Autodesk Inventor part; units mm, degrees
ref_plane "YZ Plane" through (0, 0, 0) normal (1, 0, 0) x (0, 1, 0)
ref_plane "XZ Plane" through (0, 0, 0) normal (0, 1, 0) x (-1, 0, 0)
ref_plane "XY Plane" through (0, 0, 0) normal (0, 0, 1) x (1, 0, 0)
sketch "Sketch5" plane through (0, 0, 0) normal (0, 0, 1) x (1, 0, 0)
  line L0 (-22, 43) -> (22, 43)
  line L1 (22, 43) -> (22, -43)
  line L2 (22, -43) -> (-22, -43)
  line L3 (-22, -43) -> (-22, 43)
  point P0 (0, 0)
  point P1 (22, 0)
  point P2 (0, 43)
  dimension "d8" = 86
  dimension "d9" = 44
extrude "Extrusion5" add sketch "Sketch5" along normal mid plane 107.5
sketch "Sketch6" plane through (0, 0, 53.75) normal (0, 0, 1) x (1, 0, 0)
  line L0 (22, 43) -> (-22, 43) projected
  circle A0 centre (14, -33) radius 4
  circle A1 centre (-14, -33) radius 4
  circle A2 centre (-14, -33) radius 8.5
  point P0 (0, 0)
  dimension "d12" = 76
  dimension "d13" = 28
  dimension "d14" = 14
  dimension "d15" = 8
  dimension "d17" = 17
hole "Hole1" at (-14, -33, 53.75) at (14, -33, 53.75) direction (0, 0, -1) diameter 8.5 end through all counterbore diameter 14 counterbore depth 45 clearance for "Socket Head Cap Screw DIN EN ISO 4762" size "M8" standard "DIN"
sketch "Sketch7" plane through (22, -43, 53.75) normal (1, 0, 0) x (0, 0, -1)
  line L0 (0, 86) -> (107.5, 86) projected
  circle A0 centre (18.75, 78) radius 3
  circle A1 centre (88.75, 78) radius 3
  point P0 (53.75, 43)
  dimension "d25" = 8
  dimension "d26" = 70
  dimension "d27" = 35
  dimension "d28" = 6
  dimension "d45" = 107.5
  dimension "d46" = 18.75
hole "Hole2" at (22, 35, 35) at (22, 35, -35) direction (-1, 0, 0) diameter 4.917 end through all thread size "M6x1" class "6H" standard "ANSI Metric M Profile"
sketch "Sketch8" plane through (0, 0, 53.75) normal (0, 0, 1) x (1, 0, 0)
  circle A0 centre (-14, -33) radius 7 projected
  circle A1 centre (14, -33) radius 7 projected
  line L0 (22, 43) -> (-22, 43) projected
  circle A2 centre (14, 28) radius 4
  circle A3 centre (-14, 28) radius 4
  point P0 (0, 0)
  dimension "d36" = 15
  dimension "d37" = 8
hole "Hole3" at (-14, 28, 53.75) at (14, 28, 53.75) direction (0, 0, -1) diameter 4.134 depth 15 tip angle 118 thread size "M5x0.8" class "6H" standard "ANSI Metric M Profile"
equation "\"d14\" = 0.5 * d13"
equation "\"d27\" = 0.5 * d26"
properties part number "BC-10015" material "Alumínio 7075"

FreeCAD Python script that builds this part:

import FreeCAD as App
import Part
import Sketcher


def add_polygon(sketch, points):
    """Adds a closed chain of lines whose ends are joined by coincident constraints."""
    first, n = sketch.GeometryCount, len(points)
    for a, b in zip(points, points[1:] + points[:1]):
        sketch.addGeometry(Part.LineSegment(App.Vector(*a, 0), App.Vector(*b, 0)), False)
    for i in range(n):
        sketch.addConstraint(Sketcher.Constraint("Coincident", first + i, 2, first + (i + 1) % n, 1))

doc = App.newDocument("Part")
params = doc.addObject("Spreadsheet::Sheet", "Params")
for row, (alias, value) in enumerate([
    ("sketch1_width", "44 mm"),
    ("sketch1_height", "86 mm"),
    ("pad1_length", "107.5 mm"),
    ("sketch2_diameter", "8.5 mm"),
    ("hole_diameter", "8.5 mm"),
    ("hole_cbore_diameter", "14 mm"),
    ("hole_cbore_depth", "45 mm"),
    ("hole2_diameter", "4.917 mm"),
    ("hole3_diameter", "4.134 mm"),
    ("hole3_depth", "15 mm"),
], start=1):
    params.set(f"A{row}", alias)
    params.set(f"B{row}", "=" + value)
    params.setAlias(f"B{row}", alias)

body = doc.addObject("PartDesign::Body", "Body")

sketch1 = body.newObject("Sketcher::SketchObject", "Sketch")
sketch1.AttachmentSupport = (doc.getObject("XY_Plane"), [""])
sketch1.MapMode = "FlatFace"
add_polygon(sketch1, [(22, 43), (-22, 43), (-22, -43), (22, -43)])
sketch1.addConstraint([
    Sketcher.Constraint("Horizontal", 0),
    Sketcher.Constraint("Vertical", 1),
    Sketcher.Constraint("Horizontal", 2),
    Sketcher.Constraint("Vertical", 3),
    Sketcher.Constraint("Symmetric", 0, 2, 2, 2, -1, 1),
    Sketcher.Constraint("DistanceX", 0, 2, 0, 1, 44.0),
    Sketcher.Constraint("DistanceY", 1, 2, 1, 1, 86.0),
])
sketch1.setExpression("Constraints[9]", "Params.sketch1_width")
sketch1.setExpression("Constraints[10]", "Params.sketch1_height")
pad1 = body.newObject("PartDesign::Pad", "Pad")
pad1.Profile = sketch1
pad1.setExpression("Length", "Params.pad1_length")
pad1.Midplane = True

sketch2 = body.newObject("Sketcher::SketchObject", "Sketch001")
sketch2.AttachmentSupport = (doc.getObject("XY_Plane"), [""])
sketch2.MapMode = "FlatFace"
sketch2.AttachmentOffset = App.Placement(App.Vector(0, 0, 53.75), App.Rotation())
sketch2.addGeometry([
    Part.Circle(App.Vector(-14, -33, 0), App.Vector(0, 0, 1), 4.25),
    Part.Circle(App.Vector(14, -33, 0), App.Vector(0, 0, 1), 4.25),
], False)
sketch2.addConstraint([
    Sketcher.Constraint("Equal", 0, 1),
    Sketcher.Constraint("Symmetric", 0, 3, 1, 3, -2),
    Sketcher.Constraint("Diameter", 0, 8.5),
    Sketcher.Constraint("DistanceX", 0, 3, -1, 1, 14.0),
    Sketcher.Constraint("DistanceY", 0, 3, -1, 1, 33.0),
])
sketch2.setExpression("Constraints[2]", "Params.sketch2_diameter")
doc.recompute()
hole = body.newObject("PartDesign::Hole", "Hole")
hole.Profile = sketch2
hole.ThreadType = "None"
hole.setExpression("Diameter", "Params.hole_diameter")
hole.DepthType = "ThroughAll"
hole.HoleCutType = "Counterbore"
hole.setExpression("HoleCutDiameter", "Params.hole_cbore_diameter")
hole.setExpression("HoleCutDepth", "Params.hole_cbore_depth")

sketch3 = body.newObject("Sketcher::SketchObject", "Sketch002")
sketch3.AttachmentSupport = (doc.getObject("YZ_Plane"), [""])
sketch3.MapMode = "FlatFace"
sketch3.AttachmentOffset = App.Placement(App.Vector(0, 0, 22), App.Rotation())
sketch3.addGeometry([
    Part.Circle(App.Vector(35, 35, 0), App.Vector(0, 0, 1), 2.4585),
    Part.Circle(App.Vector(35, -35, 0), App.Vector(0, 0, 1), 2.4585),
], False)
sketch3.addConstraint([
    Sketcher.Constraint("Equal", 0, 1),
    Sketcher.Constraint("Symmetric", 0, 3, 1, 3, -1),
    Sketcher.Constraint("Diameter", 0, 4.917),
    Sketcher.Constraint("DistanceX", -1, 1, 0, 3, 35.0),
    Sketcher.Constraint("DistanceY", -1, 1, 0, 3, 35.0),
])
doc.recompute()
hole2 = body.newObject("PartDesign::Hole", "Hole001")
hole2.Profile = sketch3
hole2.ThreadType = "None"
hole2.setExpression("Diameter", "Params.hole2_diameter")
hole2.DepthType = "ThroughAll"

sketch4 = body.newObject("Sketcher::SketchObject", "Sketch003")
sketch4.AttachmentSupport = (doc.getObject("XY_Plane"), [""])
sketch4.MapMode = "FlatFace"
sketch4.AttachmentOffset = App.Placement(App.Vector(0, 0, 53.75), App.Rotation())
sketch4.addGeometry([
    Part.Circle(App.Vector(-14, 28, 0), App.Vector(0, 0, 1), 2.067),
    Part.Circle(App.Vector(14, 28, 0), App.Vector(0, 0, 1), 2.067),
], False)
sketch4.addConstraint([
    Sketcher.Constraint("Equal", 0, 1),
    Sketcher.Constraint("Symmetric", 0, 3, 1, 3, -2),
    Sketcher.Constraint("Diameter", 0, 4.134),
    Sketcher.Constraint("DistanceX", 0, 3, -1, 1, 14.0),
    Sketcher.Constraint("DistanceY", -1, 1, 0, 3, 28.0),
])
doc.recompute()
hole3 = body.newObject("PartDesign::Hole", "Hole002")
hole3.Profile = sketch4
hole3.ThreadType = "None"
hole3.setExpression("Diameter", "Params.hole3_diameter")
hole3.DepthType = "Dimension"
hole3.setExpression("Depth", "Params.hole3_depth")
hole3.DrillPoint = "Angled"
hole3.DrillPointAngle = 118

doc.recompute()
